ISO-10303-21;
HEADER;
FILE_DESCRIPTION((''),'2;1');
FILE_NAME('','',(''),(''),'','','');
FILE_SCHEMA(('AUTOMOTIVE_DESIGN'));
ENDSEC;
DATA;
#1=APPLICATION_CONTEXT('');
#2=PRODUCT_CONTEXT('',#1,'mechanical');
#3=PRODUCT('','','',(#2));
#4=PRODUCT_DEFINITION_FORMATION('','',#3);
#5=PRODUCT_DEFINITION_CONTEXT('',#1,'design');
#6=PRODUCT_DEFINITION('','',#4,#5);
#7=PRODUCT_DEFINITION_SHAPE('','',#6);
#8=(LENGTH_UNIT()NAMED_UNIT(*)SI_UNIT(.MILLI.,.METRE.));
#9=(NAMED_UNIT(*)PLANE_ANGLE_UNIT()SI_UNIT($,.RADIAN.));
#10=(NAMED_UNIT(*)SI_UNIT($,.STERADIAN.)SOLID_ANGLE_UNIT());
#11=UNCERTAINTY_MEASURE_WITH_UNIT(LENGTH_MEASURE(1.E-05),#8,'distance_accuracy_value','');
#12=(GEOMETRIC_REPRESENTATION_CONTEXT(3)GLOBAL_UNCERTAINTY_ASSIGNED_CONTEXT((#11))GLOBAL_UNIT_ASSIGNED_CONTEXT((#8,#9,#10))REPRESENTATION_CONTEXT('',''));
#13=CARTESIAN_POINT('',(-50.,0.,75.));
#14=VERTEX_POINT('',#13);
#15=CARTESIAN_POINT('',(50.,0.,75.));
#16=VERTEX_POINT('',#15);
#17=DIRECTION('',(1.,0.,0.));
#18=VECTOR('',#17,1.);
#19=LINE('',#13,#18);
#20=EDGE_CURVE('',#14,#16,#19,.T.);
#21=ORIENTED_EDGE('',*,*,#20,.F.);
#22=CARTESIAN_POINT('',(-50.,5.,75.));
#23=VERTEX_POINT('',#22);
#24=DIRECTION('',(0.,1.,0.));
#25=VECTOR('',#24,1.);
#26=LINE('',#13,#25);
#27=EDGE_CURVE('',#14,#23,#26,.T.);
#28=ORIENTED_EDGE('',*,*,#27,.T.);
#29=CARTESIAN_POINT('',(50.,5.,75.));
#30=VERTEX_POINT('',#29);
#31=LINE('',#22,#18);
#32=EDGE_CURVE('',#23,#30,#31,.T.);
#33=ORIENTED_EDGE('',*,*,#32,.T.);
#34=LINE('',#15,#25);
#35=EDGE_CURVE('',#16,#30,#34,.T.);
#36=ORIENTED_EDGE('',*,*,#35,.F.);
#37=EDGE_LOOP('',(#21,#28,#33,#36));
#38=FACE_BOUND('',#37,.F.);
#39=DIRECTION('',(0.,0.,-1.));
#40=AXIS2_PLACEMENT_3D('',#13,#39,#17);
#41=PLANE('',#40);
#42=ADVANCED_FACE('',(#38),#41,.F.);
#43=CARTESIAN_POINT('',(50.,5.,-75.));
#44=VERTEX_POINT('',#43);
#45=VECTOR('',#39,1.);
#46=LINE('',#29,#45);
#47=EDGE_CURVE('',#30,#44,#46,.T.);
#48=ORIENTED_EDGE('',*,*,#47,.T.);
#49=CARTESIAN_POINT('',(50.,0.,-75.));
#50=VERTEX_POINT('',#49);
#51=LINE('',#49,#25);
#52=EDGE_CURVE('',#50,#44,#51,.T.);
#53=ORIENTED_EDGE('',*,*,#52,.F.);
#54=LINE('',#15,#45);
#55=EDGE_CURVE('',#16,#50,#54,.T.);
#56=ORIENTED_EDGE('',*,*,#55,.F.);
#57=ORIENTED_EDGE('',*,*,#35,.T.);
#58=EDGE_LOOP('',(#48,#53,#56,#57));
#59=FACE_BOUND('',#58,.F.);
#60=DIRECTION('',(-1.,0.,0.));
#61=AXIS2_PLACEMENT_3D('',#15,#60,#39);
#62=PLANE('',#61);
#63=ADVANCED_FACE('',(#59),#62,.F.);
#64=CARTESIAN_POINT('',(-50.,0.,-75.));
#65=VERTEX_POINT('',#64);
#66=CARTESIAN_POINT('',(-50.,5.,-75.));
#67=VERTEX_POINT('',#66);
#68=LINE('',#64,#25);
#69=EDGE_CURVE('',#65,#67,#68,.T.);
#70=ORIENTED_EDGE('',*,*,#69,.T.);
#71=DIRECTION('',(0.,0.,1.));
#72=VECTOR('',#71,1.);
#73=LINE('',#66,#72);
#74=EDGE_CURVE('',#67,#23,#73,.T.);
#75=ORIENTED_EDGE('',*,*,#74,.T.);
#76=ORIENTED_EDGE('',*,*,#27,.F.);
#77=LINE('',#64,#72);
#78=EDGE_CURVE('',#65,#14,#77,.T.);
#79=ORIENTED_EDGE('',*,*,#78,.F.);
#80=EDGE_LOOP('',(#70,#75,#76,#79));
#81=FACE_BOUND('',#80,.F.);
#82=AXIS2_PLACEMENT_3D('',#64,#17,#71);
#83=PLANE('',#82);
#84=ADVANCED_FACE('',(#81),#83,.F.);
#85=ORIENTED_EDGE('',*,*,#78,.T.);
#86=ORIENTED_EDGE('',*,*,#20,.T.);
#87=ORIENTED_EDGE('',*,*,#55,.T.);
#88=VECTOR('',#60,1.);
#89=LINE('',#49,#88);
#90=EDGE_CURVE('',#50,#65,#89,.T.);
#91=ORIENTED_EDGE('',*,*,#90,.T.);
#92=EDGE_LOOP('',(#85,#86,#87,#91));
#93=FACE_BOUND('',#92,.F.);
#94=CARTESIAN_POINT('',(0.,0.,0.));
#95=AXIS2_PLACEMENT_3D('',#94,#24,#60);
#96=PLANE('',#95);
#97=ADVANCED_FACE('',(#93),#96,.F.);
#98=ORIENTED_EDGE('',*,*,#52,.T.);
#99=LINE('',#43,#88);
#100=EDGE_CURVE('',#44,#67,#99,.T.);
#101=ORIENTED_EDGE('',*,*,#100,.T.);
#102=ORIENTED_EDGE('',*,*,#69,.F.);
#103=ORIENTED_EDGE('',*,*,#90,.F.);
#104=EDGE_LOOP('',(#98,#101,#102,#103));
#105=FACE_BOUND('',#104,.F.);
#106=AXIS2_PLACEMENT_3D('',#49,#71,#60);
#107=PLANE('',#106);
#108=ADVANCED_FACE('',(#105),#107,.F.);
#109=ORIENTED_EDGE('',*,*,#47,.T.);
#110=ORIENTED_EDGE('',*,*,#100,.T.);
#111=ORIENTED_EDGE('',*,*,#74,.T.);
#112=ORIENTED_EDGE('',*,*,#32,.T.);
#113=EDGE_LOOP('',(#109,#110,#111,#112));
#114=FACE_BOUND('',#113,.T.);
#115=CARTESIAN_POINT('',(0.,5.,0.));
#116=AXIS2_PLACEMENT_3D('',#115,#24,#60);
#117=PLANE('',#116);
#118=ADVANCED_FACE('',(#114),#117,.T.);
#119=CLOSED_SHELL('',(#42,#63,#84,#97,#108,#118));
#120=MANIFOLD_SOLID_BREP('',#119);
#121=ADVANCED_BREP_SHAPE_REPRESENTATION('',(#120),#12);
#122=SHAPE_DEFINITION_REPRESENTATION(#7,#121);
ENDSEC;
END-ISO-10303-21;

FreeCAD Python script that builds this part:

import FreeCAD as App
import Part
import Sketcher

V = App.Vector


def add_polygon(sketch, points):
    """Adds a closed chain of lines whose ends are joined by coincident constraints."""
    first, n = sketch.GeometryCount, len(points)
    for a, b in zip(points, points[1:] + points[:1]):
        sketch.addGeometry(Part.LineSegment(App.Vector(*a, 0), App.Vector(*b, 0)), False)
    for i in range(n):
        sketch.addConstraint(Sketcher.Constraint("Coincident", first + i, 2, first + (i + 1) % n, 1))

doc = App.newDocument("Part")
body = doc.addObject("PartDesign::Body", "Body")

sketch1 = doc.addObject("Sketcher::SketchObject", "Sketch")
body.addObject(sketch1)
sketch1.AttachmentSupport = (doc.XZ_Plane, [""])
sketch1.MapMode = "FlatFace"
add_polygon(sketch1, [(-50, -75), (-50, 75), (50, 75), (50, -75)])
sketch1.addConstraint(Sketcher.Constraint("Vertical", 0))
sketch1.addConstraint(Sketcher.Constraint("Horizontal", 1))
sketch1.addConstraint(Sketcher.Constraint("Vertical", 2))
sketch1.addConstraint(Sketcher.Constraint("Horizontal", 3))
sketch1.addConstraint(Sketcher.Constraint("Symmetric", 0, 2, 2, 2, -1, 1))
sketch1.addConstraint(Sketcher.Constraint("DistanceX", 1, 1, 1, 2, 100.0))
sketch1.addConstraint(Sketcher.Constraint("DistanceY", 0, 1, 0, 2, 150.0))
pad1 = doc.addObject("PartDesign::Pad", "Pad")
body.addObject(pad1)
pad1.Profile = sketch1
pad1.Length = 5
pad1.Reversed = True

doc.recompute()
